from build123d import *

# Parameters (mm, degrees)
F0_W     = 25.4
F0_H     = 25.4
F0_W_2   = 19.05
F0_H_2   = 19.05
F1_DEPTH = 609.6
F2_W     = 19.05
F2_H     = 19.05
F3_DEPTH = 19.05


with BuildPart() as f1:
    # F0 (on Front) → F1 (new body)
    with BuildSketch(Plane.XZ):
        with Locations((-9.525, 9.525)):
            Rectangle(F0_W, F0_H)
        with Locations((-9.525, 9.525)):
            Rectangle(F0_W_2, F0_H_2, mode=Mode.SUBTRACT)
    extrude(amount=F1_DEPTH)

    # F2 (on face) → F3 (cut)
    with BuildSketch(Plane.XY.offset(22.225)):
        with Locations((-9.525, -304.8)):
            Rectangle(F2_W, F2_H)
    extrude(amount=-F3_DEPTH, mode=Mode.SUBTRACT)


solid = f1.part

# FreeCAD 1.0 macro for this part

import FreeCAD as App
import Part
import Sketcher
from FreeCAD import Vector
Q = App.Units.Quantity

doc = App.newDocument("Part")
body = doc.addObject("PartDesign::Body", "Body")

# Sketch on XZ plane
sketch1 = body.newObject("Sketcher::SketchObject", "Sketch")
sketch1.AttachmentSupport = (doc.getObject("XZ_Plane"), [""])
sketch1.MapMode = "FlatFace"
sketch1.addGeometry([
    Part.LineSegment(Vector(-22.225, 22.225, 0), Vector(-22.225, -3.175, 0)),  # 0
    Part.LineSegment(Vector(-22.225, -3.175, 0), Vector(3.175, -3.175, 0)),  # 1
    Part.LineSegment(Vector(3.175, -3.175, 0), Vector(3.175, 22.225, 0)),  # 2
    Part.LineSegment(Vector(3.175, 22.225, 0), Vector(-22.225, 22.225, 0)),  # 3
    Part.LineSegment(Vector(0, 0, 0), Vector(-19.05, 0, 0)),  # 4
    Part.LineSegment(Vector(-19.05, 0, 0), Vector(-19.05, 19.05, 0)),  # 5
    Part.LineSegment(Vector(-19.05, 19.05, 0), Vector(0, 19.05, 0)),  # 6
    Part.LineSegment(Vector(0, 19.05, 0), Vector(0, 0, 0)),  # 7
], False)
sketch1.addConstraint([
    Sketcher.Constraint("Coincident", 0, 2, 1, 1),
    Sketcher.Constraint("Coincident", 1, 2, 2, 1),
    Sketcher.Constraint("Coincident", 2, 2, 3, 1),
    Sketcher.Constraint("Coincident", 3, 2, 0, 1),
    Sketcher.Constraint("Coincident", 4, 2, 5, 1),
    Sketcher.Constraint("Coincident", 5, 2, 6, 1),
    Sketcher.Constraint("Coincident", 6, 2, 7, 1),
    Sketcher.Constraint("Coincident", 7, 2, 4, 1),
    Sketcher.Constraint("Vertical", 0),
    Sketcher.Constraint("Horizontal", 1),
    Sketcher.Constraint("Vertical", 2),
    Sketcher.Constraint("Horizontal", 3),
    Sketcher.Constraint("Horizontal", 4),
    Sketcher.Constraint("Vertical", 5),
    Sketcher.Constraint("Horizontal", 6),
    Sketcher.Constraint("Vertical", 7),
    Sketcher.Constraint("Coincident", 7, 2, -1, 1),
    Sketcher.Constraint("Equal", 3, 0),
    Sketcher.Constraint("Equal", 6, 5),
    Sketcher.Constraint("DistanceX", 1, 1, 1, 2, Q("1 in")),
    Sketcher.Constraint("DistanceX", 4, 2, 4, 1, Q("0.75 in")),
    Sketcher.Constraint("DistanceX", 0, 2, -1, 1, Q("0.875 in")),
    Sketcher.Constraint("DistanceY", 0, 2, -1, 1, Q("0.125 in")),
])
pad1 = body.newObject("PartDesign::Pad", "Pad")
pad1.Profile = sketch1
pad1.Length = Q("24 in")

# Sketch on XY plane
sketch2 = body.newObject("Sketcher::SketchObject", "Sketch001")
sketch2.AttachmentSupport = (doc.getObject("XY_Plane"), [""])
sketch2.MapMode = "FlatFace"
sketch2.AttachmentOffset = App.Placement(Vector(0, 0, 0.875 * 25.4), App.Rotation())
sketch2.addGeometry([
    Part.LineSegment(Vector(-19.05, -295.275, 0), Vector(-19.05, -314.325, 0)),
    Part.LineSegment(Vector(-19.05, -314.325, 0), Vector(0, -314.325, 0)),
    Part.LineSegment(Vector(0, -314.325, 0), Vector(0, -295.275, 0)),
    Part.LineSegment(Vector(0, -295.275, 0), Vector(-19.05, -295.275, 0)),
], False)
sketch2.addConstraint([
    Sketcher.Constraint("Coincident", 0, 2, 1, 1),
    Sketcher.Constraint("Coincident", 1, 2, 2, 1),
    Sketcher.Constraint("Coincident", 2, 2, 3, 1),
    Sketcher.Constraint("Coincident", 3, 2, 0, 1),
    Sketcher.Constraint("Vertical", 0),
    Sketcher.Constraint("Horizontal", 1),
    Sketcher.Constraint("Vertical", 2),
    Sketcher.Constraint("Horizontal", 3),
    Sketcher.Constraint("PointOnObject", 1, 2, -2),
    Sketcher.Constraint("Equal", 3, 0),
    Sketcher.Constraint("DistanceX", 1, 1, 1, 2, Q("0.75 in")),
    Sketcher.Constraint("DistanceY", 0, 2, -1, 1, Q("12.375 in")),
])
pocket1 = body.newObject("PartDesign::Pocket", "Pocket")
pocket1.Profile = sketch2
pocket1.Length = Q("0.75 in")

doc.recompute()
